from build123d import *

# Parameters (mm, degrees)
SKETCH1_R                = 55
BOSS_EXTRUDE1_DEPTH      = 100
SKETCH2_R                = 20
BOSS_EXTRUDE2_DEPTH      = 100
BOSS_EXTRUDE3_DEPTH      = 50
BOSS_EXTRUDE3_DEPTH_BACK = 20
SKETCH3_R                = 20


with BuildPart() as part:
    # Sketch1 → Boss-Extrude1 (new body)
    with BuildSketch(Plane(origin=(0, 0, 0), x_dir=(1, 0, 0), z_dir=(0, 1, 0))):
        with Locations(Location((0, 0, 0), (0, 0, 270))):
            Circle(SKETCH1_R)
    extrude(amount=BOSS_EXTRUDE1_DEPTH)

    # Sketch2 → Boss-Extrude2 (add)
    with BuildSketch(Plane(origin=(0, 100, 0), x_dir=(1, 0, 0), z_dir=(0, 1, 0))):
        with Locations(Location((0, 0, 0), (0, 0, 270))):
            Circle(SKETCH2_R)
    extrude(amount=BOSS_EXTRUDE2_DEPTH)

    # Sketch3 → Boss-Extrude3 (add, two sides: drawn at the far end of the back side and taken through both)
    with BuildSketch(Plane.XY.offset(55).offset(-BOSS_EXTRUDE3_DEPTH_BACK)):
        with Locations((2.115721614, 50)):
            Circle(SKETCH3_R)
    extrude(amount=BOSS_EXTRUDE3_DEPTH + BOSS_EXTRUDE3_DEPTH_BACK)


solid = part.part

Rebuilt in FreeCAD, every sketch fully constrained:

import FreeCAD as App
import Part
import Sketcher

V = App.Vector
Q = App.Units.Quantity

doc = App.newDocument("Part")
body = doc.addObject("PartDesign::Body", "Body")

# Sketch on XZ plane
sketch1 = doc.addObject("Sketcher::SketchObject", "Sketch")
body.addObject(sketch1)
sketch1.AttachmentSupport = (doc.XZ_Plane, [""])
sketch1.MapMode = "FlatFace"
sketch1.addGeometry(Part.Circle(V(0, 0, 0), V(0, 0, 1), 55), False)
sketch1.addConstraint([
    Sketcher.Constraint("Coincident", 0, 3, -1, 1),
    Sketcher.Constraint("Diameter", 0, Q("110 mm")),
])
pad1 = doc.addObject("PartDesign::Pad", "Pad")
body.addObject(pad1)
pad1.Profile = sketch1
pad1.Length = 100
pad1.Reversed = True

# Sketch on XZ plane
sketch2 = doc.addObject("Sketcher::SketchObject", "Sketch001")
body.addObject(sketch2)
sketch2.AttachmentSupport = (doc.XZ_Plane, [""])
sketch2.MapMode = "FlatFace"
sketch2.AttachmentOffset = App.Placement(V(0, 0, -100), App.Rotation())
sketch2.addGeometry(Part.Circle(V(0, 0, 0), V(0, 0, 1), 20), False)
sketch2.addConstraint([
    Sketcher.Constraint("Coincident", 0, 3, -1, 1),
    Sketcher.Constraint("Diameter", 0, Q("40 mm")),
])
pad2 = doc.addObject("PartDesign::Pad", "Pad001")
body.addObject(pad2)
pad2.Profile = sketch2
pad2.Length = 100
pad2.Reversed = True

# Sketch on XY plane
sketch3 = doc.addObject("Sketcher::SketchObject", "Sketch002")
body.addObject(sketch3)
sketch3.AttachmentSupport = (doc.XY_Plane, [""])
sketch3.MapMode = "FlatFace"
sketch3.AttachmentOffset = App.Placement(V(0, 0, 55), App.Rotation())
sketch3.addGeometry(Part.Circle(V(2, 50, 0), V(0, 0, 1), 20), False)
sketch3.addConstraint([
    Sketcher.Constraint("Diameter", 0, Q("40 mm")),
    Sketcher.Constraint("DistanceY", -1, 1, 0, 3, Q("50 mm")),
    Sketcher.Constraint("DistanceX", -1, 1, 0, 3, Q("2.115722 mm")),
])
pad3 = doc.addObject("PartDesign::Pad", "Pad002")
body.addObject(pad3)
pad3.Profile = sketch3
pad3.Type = "TwoLengths"
pad3.Length = 50
pad3.Length2 = 20

doc.recompute()
